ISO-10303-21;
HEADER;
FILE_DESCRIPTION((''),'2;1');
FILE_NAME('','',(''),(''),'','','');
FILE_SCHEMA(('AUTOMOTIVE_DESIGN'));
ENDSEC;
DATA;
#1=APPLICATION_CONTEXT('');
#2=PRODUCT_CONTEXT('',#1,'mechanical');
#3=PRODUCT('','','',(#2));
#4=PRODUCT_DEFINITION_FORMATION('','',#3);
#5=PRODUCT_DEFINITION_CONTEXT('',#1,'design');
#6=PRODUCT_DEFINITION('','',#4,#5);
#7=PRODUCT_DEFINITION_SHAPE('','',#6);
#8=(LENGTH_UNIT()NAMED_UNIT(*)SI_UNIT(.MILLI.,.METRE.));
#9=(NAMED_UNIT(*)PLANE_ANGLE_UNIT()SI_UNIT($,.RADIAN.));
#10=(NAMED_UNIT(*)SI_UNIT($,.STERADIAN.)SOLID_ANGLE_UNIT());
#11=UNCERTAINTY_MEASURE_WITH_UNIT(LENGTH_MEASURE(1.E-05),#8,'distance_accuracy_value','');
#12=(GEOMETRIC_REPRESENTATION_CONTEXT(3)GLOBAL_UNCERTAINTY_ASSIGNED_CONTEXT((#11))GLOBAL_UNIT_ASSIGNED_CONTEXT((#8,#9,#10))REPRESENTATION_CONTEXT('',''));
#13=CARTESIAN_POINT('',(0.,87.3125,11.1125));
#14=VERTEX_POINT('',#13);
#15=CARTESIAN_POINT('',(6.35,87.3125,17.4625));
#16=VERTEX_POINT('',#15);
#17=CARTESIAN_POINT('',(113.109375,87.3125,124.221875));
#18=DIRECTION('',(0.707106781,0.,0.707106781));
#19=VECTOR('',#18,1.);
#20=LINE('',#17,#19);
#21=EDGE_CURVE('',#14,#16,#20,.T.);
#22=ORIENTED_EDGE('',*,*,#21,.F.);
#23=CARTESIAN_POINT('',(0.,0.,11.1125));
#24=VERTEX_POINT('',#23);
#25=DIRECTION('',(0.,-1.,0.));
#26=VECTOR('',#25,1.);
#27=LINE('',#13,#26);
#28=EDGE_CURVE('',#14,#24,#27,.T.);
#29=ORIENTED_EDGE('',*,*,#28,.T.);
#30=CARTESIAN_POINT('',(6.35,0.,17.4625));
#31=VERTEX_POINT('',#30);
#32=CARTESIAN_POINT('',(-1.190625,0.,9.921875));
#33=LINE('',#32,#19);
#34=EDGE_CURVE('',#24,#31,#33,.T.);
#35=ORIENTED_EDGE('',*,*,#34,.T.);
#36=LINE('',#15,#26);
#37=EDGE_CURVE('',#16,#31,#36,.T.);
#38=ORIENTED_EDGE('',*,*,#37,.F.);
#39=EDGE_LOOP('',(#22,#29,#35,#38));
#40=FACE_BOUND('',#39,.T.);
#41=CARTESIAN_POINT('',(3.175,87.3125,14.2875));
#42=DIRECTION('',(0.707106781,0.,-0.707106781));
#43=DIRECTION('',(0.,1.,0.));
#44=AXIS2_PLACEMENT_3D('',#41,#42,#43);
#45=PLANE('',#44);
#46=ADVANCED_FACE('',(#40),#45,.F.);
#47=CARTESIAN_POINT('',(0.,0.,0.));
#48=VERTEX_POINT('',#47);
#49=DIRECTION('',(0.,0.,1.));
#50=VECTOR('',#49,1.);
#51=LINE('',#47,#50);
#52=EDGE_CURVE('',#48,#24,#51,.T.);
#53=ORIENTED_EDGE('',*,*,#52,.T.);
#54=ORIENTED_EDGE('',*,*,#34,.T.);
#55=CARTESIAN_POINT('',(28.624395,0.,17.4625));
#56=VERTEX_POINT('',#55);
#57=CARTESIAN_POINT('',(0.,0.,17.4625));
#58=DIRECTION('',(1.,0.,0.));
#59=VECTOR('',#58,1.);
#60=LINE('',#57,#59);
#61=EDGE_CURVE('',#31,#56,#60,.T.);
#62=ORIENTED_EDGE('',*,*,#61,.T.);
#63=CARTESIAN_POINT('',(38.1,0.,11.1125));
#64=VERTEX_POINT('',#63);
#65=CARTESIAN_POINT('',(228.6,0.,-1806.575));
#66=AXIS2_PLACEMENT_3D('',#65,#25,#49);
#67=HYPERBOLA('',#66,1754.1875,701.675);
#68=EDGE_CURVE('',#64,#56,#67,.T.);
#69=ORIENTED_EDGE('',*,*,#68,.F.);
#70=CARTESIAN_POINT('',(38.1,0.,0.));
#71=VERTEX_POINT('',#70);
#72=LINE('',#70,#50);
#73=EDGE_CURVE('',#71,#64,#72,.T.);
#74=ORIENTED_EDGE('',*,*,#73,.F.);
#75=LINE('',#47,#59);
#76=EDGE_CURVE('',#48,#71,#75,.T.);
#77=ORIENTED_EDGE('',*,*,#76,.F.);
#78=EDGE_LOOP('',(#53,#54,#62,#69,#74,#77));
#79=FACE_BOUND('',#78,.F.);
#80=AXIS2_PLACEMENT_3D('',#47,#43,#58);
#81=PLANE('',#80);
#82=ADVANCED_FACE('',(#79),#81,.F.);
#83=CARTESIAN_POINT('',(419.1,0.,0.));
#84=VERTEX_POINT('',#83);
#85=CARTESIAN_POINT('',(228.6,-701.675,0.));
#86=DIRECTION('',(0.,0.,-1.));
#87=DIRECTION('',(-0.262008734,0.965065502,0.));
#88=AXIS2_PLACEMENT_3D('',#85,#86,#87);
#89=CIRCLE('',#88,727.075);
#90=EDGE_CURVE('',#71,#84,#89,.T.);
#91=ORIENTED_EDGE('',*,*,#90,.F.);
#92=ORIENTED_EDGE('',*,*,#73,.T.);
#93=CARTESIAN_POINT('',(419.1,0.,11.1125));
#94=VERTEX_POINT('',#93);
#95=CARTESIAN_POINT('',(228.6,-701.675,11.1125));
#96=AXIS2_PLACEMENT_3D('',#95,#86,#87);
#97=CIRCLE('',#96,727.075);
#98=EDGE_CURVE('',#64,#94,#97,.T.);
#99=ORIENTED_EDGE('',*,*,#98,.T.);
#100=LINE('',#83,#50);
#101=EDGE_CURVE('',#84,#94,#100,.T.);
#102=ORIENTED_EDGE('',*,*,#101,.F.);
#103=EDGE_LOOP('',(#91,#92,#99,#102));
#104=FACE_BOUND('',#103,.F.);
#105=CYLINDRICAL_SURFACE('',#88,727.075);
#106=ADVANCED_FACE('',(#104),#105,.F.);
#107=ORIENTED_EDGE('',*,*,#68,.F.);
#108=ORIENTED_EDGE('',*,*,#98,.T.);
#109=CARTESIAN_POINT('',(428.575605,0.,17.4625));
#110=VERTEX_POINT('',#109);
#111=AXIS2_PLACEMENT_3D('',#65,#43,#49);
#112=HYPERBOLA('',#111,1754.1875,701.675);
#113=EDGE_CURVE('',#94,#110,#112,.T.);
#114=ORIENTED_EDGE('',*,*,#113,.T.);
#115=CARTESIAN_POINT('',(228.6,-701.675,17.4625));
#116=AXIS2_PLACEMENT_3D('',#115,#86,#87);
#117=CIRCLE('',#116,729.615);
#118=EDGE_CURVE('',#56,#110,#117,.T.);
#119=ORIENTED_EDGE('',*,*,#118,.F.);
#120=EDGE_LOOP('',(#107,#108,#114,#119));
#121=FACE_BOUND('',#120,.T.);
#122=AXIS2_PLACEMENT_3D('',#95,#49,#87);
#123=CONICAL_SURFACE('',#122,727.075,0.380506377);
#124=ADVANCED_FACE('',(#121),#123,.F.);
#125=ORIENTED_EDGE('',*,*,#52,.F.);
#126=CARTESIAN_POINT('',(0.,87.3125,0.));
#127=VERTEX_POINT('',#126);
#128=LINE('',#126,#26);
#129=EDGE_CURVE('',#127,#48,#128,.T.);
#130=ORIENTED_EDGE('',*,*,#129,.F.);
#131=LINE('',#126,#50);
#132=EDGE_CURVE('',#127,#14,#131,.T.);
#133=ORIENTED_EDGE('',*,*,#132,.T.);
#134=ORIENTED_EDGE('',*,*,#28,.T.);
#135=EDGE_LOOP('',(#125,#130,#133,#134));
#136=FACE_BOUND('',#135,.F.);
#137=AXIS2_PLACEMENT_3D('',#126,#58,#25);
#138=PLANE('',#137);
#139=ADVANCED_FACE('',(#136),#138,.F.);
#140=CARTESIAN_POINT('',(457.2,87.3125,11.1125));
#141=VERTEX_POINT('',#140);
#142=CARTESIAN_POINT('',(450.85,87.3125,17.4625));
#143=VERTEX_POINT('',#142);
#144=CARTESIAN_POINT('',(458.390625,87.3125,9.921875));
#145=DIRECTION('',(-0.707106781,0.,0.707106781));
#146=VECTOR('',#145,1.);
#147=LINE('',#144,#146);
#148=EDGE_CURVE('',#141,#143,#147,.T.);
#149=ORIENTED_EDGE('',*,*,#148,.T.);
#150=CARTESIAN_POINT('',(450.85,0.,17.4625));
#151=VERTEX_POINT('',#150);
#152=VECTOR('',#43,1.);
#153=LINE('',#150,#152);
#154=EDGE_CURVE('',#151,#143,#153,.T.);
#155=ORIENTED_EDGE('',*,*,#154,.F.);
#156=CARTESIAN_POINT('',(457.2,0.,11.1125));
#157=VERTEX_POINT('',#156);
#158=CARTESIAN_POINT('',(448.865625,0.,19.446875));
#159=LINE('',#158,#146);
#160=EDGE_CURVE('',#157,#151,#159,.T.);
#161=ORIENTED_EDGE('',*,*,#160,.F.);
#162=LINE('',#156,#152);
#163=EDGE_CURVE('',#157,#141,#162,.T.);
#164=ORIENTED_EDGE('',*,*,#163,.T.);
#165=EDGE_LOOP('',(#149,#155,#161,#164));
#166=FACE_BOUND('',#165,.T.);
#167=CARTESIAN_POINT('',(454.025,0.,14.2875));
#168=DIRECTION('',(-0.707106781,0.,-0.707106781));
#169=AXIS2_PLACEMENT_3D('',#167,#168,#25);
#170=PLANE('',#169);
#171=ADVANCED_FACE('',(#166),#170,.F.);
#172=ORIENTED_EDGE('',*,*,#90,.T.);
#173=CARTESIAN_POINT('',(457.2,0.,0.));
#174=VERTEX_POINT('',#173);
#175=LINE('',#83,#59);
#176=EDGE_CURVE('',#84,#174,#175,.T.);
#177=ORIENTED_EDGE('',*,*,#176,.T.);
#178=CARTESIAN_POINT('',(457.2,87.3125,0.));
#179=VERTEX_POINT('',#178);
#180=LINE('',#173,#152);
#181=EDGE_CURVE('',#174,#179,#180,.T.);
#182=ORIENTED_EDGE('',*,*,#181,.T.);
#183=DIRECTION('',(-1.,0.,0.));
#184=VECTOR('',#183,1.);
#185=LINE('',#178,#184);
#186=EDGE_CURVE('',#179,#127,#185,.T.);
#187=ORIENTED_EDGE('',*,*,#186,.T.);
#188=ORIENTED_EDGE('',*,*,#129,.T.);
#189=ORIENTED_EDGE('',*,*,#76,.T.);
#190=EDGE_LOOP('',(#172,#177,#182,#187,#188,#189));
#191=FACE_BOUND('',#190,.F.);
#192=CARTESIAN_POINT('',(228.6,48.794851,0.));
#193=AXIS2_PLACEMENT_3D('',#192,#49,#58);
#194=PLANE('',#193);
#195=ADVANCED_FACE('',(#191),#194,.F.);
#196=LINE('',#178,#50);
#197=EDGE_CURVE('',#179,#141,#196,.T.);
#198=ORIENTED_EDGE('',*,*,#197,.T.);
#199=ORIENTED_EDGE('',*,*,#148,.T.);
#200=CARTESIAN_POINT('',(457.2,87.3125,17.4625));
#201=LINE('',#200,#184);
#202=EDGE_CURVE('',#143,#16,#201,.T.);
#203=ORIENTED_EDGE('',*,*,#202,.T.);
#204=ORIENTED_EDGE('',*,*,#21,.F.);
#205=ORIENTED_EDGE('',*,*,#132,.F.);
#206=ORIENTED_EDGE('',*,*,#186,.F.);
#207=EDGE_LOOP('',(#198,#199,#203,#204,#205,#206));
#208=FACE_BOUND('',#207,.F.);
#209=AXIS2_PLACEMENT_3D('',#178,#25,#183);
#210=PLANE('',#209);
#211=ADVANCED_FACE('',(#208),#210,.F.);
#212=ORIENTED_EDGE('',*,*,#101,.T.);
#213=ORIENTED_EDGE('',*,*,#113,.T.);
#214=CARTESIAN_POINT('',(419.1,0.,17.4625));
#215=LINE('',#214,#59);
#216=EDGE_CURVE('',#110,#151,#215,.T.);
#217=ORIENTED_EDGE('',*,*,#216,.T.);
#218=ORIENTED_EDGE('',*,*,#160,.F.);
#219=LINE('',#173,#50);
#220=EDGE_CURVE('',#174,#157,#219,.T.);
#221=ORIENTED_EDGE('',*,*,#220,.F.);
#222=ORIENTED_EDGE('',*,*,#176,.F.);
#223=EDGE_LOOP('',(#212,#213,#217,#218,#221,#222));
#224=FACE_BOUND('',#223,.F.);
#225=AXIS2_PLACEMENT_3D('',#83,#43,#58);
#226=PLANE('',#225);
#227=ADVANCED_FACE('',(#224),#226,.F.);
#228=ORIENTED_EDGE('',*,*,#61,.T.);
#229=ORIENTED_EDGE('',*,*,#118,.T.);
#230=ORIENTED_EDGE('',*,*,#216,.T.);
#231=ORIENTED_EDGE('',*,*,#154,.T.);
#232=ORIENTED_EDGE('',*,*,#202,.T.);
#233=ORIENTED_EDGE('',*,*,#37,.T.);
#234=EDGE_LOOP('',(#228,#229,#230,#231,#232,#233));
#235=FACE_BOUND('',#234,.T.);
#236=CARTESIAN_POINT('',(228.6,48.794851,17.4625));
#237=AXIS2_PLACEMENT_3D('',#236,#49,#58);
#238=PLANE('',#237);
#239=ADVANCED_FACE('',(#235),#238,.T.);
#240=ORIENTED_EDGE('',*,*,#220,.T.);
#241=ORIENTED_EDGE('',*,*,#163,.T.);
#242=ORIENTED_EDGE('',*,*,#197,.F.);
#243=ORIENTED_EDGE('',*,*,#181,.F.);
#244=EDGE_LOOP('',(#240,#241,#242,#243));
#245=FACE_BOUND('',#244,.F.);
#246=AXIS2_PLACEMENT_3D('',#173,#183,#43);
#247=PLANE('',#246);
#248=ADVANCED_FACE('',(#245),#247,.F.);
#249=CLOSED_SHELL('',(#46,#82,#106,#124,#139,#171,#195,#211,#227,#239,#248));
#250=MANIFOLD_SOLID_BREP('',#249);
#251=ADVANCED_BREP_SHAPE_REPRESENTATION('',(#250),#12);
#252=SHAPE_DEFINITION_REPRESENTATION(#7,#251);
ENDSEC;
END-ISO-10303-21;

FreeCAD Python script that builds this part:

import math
import FreeCAD as App
import Part
import Sketcher
Q = App.Units.Quantity


def edges_at(feature, points):
    """Names of the edges that pass closest to the given points."""
    edges = feature.Shape.Edges
    near = lambda p: min(range(len(edges)), key=lambda i: edges[i].distToShape(Part.Vertex(*p))[0])
    return sorted({f"Edge{near(p) + 1}" for p in points})

doc = App.newDocument("Part")
body = doc.addObject("PartDesign::Body", "Body")

sketch1 = body.newObject("Sketcher::SketchObject", "Sketch")
sketch1.AttachmentSupport = (doc.getObject("XY_Plane"), [""])
sketch1.MapMode = "FlatFace"
sketch1.addGeometry([
    Part.LineSegment(App.Vector(0, 87, 0), App.Vector(0, 0, 0)),
    Part.LineSegment(App.Vector(0, 0, 0), App.Vector(38, 0, 0)),
    Part.ArcOfCircle(Part.Circle(App.Vector(229, -702, 0), App.Vector(0, 0, 1), 727), math.radians(75), math.radians(105)),
    Part.LineSegment(App.Vector(419, 0, 0), App.Vector(457, 0, 0)),
    Part.LineSegment(App.Vector(457, 0, 0), App.Vector(457, 87, 0)),
    Part.LineSegment(App.Vector(457, 87, 0), App.Vector(0, 87, 0)),
], False)
sketch1.addConstraint([
    Sketcher.Constraint("Coincident", 0, 2, 1, 1),
    Sketcher.Constraint("Coincident", 1, 2, 2, 2),
    Sketcher.Constraint("Coincident", 2, 1, 3, 1),
    Sketcher.Constraint("Coincident", 3, 2, 4, 1),
    Sketcher.Constraint("Coincident", 4, 2, 5, 1),
    Sketcher.Constraint("Coincident", 5, 2, 0, 1),
    Sketcher.Constraint("Vertical", 0),
    Sketcher.Constraint("Horizontal", 1),
    Sketcher.Constraint("Horizontal", 3),
    Sketcher.Constraint("Vertical", 4),
    Sketcher.Constraint("Horizontal", 5),
    Sketcher.Constraint("Coincident", 0, 2, -1, 1),
    Sketcher.Constraint("PointOnObject", 2, 1, -1),
    Sketcher.Constraint("Equal", 1, 3),
    Sketcher.Constraint("DistanceX", 5, 2, 5, 1, Q("18 in")),
    Sketcher.Constraint("DistanceX", 1, 1, 1, 2, Q("1.5 in")),
    Sketcher.Constraint("Radius", 2, Q("28.625 in")),
    Sketcher.Constraint("DistanceY", 0, 2, 0, 1, Q("3.4375 in")),
])
pad1 = body.newObject("PartDesign::Pad", "Pad")
pad1.Profile = sketch1
pad1.Length = Q("0.6875 in")
doc.recompute()

chamfer = body.newObject("PartDesign::Chamfer", "Chamfer")
chamfer.Base = (pad1, edges_at(pad1, [(0, 43.656, 17.462), (457.2, 43.656, 17.462)]))
chamfer.Size = Q("0.25 in")
doc.recompute()

chamfer2 = body.newObject("PartDesign::Chamfer", "Chamfer001")
chamfer2.Base = (chamfer, edges_at(chamfer, [(228.6, 25.4, 17.462)]))
chamfer2.ChamferType = "Two distances"
chamfer2.Size = Q("0.25 in")
chamfer2.Size2 = Q("0.1 in")
chamfer2.FlipDirection = True

doc.recompute()
